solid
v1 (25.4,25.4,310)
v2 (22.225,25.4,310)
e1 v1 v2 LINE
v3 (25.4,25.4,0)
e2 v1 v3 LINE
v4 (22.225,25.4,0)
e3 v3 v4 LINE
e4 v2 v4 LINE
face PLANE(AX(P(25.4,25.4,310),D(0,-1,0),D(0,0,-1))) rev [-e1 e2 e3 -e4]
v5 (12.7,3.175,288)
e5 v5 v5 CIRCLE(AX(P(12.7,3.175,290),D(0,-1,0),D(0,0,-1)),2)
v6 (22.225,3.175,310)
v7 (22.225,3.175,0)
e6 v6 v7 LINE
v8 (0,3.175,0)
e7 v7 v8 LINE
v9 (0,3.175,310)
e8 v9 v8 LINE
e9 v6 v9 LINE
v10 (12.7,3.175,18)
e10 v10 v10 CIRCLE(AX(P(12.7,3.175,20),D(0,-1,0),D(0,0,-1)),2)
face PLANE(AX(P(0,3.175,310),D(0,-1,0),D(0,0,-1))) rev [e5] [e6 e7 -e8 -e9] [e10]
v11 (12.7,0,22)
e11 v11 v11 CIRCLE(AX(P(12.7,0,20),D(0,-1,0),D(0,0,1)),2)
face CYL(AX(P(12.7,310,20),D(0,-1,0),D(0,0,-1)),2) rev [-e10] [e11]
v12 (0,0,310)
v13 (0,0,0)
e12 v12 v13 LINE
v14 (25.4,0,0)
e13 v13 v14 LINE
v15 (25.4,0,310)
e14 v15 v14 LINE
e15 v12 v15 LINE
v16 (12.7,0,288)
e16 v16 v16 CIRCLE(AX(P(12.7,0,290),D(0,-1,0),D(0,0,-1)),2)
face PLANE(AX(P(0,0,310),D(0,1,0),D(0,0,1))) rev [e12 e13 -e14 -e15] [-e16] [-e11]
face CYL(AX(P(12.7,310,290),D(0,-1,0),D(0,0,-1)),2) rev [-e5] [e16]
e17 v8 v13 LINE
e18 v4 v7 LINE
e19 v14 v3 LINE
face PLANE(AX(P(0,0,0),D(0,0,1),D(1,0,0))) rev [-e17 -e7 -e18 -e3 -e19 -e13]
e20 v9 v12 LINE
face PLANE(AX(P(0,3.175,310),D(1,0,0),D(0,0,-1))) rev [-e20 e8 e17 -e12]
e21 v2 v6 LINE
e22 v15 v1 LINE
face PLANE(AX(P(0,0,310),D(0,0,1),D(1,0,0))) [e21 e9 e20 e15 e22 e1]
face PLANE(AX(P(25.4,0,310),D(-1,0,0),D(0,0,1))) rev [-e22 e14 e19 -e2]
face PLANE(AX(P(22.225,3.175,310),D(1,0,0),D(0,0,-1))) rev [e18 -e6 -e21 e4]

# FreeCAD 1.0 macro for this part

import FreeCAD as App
import Part
import Sketcher

V = App.Vector
Q = App.Units.Quantity


def add_polygon(sketch, points):
    """Adds a closed chain of lines whose ends are joined by coincident constraints."""
    first, n = sketch.GeometryCount, len(points)
    for a, b in zip(points, points[1:] + points[:1]):
        sketch.addGeometry(Part.LineSegment(App.Vector(*a, 0), App.Vector(*b, 0)), False)
    for i in range(n):
        sketch.addConstraint(Sketcher.Constraint("Coincident", first + i, 2, first + (i + 1) % n, 1))

doc = App.newDocument("Part")
body = doc.addObject("PartDesign::Body", "Body")

# Sketch on XY plane
sketch1 = doc.addObject("Sketcher::SketchObject", "Sketch")
body.addObject(sketch1)
sketch1.AttachmentSupport = (doc.XY_Plane, [""])
sketch1.MapMode = "FlatFace"
add_polygon(sketch1, [(0, 0), (25.4, 0), (25.4, 25.4), (22.2, 25.4), (22.2, 3.2), (0, 3.2)])  # lines 0-5
sketch1.addConstraint([
    Sketcher.Constraint("Horizontal", 0),
    Sketcher.Constraint("Vertical", 1),
    Sketcher.Constraint("Horizontal", 2),
    Sketcher.Constraint("Vertical", 3),
    Sketcher.Constraint("Horizontal", 4),
    Sketcher.Constraint("Vertical", 5),
    Sketcher.Constraint("Coincident", 5, 2, -1, 1),
    Sketcher.Constraint("Equal", 0, 1),
    Sketcher.Constraint("Equal", 4, 3),
    Sketcher.Constraint("DistanceX", 0, 1, 0, 2, Q("1 in")),
    Sketcher.Constraint("DistanceX", 2, 2, 2, 1, Q("0.125 in")),
])
pad1 = doc.addObject("PartDesign::Pad", "Pad")
body.addObject(pad1)
pad1.Profile = sketch1
pad1.Length = 310

# Sketch on XZ plane
sketch2 = doc.addObject("Sketcher::SketchObject", "Sketch001")
body.addObject(sketch2)
sketch2.AttachmentSupport = (doc.XZ_Plane, [""])
sketch2.MapMode = "FlatFace"
sketch2.addGeometry([
    Part.Circle(V(12.7, 290, 0), V(0, 0, 1), 2),
    Part.Circle(V(12.7, 20, 0), V(0, 0, 1), 2),
], False)
sketch2.addConstraint([
    Sketcher.Constraint("Equal", 0, 1),
    Sketcher.Constraint("Vertical", 0, 3, 1, 3),
    Sketcher.Constraint("DistanceX", -1, 1, 0, 3, Q("0.5 in")),
    Sketcher.Constraint("Diameter", 0, 4.0),
    Sketcher.Constraint("DistanceY", -1, 1, 0, 3, 290.0),
    Sketcher.Constraint("DistanceY", -1, 1, 1, 3, 20.0),
])
pocket1 = doc.addObject("PartDesign::Pocket", "Pocket")
body.addObject(pocket1)
pocket1.Profile = sketch2
pocket1.Length = 310

doc.recompute()
